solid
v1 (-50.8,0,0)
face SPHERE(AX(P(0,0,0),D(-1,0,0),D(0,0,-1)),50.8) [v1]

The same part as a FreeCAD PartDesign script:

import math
import FreeCAD as App
import Part
import Sketcher

V = App.Vector
Q = App.Units.Quantity

doc = App.newDocument("Part")
params = doc.addObject("Spreadsheet::Sheet", "Params")
for row, (alias, value) in enumerate([
    ("sketch1_radius", "2 in"),
    ("revolution_angle", "360 deg"),
], start=1):
    params.set(f"A{row}", alias)
    params.set(f"B{row}", "=" + value)
    params.setAlias(f"B{row}", alias)

body = doc.addObject("PartDesign::Body", "Body")

# Sketch on XZ plane
sketch1 = body.newObject("Sketcher::SketchObject", "Sketch")
sketch1.AttachmentSupport = (doc.getObject("XZ_Plane"), [""])
sketch1.MapMode = "FlatFace"
sketch1.addGeometry([
    Part.LineSegment(V(51, 0, 0), V(-51, 0, 0)),
    Part.ArcOfCircle(Part.Circle(V(0, 0, 0), V(0, 0, 1), 51), math.radians(0), math.radians(180)),
], False)
sketch1.addConstraint([
    Sketcher.Constraint("Coincident", 0, 1, 1, 1),
    Sketcher.Constraint("Coincident", 1, 2, 0, 2),
    Sketcher.Constraint("Horizontal", 0),
    Sketcher.Constraint("Coincident", 1, 3, -1, 1),
    Sketcher.Constraint("PointOnObject", 0, 1, -1),
    Sketcher.Constraint("Radius", 1, Q("2 in")),
])
sketch1.setExpression("Constraints[5]", "Params.sketch1_radius")
revolution = body.newObject("PartDesign::Revolution", "Revolution")
revolution.Profile = sketch1
revolution.ReferenceAxis = (sketch1, ["H_Axis"])
revolution.setExpression("Angle", "Params.revolution_angle")

doc.recompute()
